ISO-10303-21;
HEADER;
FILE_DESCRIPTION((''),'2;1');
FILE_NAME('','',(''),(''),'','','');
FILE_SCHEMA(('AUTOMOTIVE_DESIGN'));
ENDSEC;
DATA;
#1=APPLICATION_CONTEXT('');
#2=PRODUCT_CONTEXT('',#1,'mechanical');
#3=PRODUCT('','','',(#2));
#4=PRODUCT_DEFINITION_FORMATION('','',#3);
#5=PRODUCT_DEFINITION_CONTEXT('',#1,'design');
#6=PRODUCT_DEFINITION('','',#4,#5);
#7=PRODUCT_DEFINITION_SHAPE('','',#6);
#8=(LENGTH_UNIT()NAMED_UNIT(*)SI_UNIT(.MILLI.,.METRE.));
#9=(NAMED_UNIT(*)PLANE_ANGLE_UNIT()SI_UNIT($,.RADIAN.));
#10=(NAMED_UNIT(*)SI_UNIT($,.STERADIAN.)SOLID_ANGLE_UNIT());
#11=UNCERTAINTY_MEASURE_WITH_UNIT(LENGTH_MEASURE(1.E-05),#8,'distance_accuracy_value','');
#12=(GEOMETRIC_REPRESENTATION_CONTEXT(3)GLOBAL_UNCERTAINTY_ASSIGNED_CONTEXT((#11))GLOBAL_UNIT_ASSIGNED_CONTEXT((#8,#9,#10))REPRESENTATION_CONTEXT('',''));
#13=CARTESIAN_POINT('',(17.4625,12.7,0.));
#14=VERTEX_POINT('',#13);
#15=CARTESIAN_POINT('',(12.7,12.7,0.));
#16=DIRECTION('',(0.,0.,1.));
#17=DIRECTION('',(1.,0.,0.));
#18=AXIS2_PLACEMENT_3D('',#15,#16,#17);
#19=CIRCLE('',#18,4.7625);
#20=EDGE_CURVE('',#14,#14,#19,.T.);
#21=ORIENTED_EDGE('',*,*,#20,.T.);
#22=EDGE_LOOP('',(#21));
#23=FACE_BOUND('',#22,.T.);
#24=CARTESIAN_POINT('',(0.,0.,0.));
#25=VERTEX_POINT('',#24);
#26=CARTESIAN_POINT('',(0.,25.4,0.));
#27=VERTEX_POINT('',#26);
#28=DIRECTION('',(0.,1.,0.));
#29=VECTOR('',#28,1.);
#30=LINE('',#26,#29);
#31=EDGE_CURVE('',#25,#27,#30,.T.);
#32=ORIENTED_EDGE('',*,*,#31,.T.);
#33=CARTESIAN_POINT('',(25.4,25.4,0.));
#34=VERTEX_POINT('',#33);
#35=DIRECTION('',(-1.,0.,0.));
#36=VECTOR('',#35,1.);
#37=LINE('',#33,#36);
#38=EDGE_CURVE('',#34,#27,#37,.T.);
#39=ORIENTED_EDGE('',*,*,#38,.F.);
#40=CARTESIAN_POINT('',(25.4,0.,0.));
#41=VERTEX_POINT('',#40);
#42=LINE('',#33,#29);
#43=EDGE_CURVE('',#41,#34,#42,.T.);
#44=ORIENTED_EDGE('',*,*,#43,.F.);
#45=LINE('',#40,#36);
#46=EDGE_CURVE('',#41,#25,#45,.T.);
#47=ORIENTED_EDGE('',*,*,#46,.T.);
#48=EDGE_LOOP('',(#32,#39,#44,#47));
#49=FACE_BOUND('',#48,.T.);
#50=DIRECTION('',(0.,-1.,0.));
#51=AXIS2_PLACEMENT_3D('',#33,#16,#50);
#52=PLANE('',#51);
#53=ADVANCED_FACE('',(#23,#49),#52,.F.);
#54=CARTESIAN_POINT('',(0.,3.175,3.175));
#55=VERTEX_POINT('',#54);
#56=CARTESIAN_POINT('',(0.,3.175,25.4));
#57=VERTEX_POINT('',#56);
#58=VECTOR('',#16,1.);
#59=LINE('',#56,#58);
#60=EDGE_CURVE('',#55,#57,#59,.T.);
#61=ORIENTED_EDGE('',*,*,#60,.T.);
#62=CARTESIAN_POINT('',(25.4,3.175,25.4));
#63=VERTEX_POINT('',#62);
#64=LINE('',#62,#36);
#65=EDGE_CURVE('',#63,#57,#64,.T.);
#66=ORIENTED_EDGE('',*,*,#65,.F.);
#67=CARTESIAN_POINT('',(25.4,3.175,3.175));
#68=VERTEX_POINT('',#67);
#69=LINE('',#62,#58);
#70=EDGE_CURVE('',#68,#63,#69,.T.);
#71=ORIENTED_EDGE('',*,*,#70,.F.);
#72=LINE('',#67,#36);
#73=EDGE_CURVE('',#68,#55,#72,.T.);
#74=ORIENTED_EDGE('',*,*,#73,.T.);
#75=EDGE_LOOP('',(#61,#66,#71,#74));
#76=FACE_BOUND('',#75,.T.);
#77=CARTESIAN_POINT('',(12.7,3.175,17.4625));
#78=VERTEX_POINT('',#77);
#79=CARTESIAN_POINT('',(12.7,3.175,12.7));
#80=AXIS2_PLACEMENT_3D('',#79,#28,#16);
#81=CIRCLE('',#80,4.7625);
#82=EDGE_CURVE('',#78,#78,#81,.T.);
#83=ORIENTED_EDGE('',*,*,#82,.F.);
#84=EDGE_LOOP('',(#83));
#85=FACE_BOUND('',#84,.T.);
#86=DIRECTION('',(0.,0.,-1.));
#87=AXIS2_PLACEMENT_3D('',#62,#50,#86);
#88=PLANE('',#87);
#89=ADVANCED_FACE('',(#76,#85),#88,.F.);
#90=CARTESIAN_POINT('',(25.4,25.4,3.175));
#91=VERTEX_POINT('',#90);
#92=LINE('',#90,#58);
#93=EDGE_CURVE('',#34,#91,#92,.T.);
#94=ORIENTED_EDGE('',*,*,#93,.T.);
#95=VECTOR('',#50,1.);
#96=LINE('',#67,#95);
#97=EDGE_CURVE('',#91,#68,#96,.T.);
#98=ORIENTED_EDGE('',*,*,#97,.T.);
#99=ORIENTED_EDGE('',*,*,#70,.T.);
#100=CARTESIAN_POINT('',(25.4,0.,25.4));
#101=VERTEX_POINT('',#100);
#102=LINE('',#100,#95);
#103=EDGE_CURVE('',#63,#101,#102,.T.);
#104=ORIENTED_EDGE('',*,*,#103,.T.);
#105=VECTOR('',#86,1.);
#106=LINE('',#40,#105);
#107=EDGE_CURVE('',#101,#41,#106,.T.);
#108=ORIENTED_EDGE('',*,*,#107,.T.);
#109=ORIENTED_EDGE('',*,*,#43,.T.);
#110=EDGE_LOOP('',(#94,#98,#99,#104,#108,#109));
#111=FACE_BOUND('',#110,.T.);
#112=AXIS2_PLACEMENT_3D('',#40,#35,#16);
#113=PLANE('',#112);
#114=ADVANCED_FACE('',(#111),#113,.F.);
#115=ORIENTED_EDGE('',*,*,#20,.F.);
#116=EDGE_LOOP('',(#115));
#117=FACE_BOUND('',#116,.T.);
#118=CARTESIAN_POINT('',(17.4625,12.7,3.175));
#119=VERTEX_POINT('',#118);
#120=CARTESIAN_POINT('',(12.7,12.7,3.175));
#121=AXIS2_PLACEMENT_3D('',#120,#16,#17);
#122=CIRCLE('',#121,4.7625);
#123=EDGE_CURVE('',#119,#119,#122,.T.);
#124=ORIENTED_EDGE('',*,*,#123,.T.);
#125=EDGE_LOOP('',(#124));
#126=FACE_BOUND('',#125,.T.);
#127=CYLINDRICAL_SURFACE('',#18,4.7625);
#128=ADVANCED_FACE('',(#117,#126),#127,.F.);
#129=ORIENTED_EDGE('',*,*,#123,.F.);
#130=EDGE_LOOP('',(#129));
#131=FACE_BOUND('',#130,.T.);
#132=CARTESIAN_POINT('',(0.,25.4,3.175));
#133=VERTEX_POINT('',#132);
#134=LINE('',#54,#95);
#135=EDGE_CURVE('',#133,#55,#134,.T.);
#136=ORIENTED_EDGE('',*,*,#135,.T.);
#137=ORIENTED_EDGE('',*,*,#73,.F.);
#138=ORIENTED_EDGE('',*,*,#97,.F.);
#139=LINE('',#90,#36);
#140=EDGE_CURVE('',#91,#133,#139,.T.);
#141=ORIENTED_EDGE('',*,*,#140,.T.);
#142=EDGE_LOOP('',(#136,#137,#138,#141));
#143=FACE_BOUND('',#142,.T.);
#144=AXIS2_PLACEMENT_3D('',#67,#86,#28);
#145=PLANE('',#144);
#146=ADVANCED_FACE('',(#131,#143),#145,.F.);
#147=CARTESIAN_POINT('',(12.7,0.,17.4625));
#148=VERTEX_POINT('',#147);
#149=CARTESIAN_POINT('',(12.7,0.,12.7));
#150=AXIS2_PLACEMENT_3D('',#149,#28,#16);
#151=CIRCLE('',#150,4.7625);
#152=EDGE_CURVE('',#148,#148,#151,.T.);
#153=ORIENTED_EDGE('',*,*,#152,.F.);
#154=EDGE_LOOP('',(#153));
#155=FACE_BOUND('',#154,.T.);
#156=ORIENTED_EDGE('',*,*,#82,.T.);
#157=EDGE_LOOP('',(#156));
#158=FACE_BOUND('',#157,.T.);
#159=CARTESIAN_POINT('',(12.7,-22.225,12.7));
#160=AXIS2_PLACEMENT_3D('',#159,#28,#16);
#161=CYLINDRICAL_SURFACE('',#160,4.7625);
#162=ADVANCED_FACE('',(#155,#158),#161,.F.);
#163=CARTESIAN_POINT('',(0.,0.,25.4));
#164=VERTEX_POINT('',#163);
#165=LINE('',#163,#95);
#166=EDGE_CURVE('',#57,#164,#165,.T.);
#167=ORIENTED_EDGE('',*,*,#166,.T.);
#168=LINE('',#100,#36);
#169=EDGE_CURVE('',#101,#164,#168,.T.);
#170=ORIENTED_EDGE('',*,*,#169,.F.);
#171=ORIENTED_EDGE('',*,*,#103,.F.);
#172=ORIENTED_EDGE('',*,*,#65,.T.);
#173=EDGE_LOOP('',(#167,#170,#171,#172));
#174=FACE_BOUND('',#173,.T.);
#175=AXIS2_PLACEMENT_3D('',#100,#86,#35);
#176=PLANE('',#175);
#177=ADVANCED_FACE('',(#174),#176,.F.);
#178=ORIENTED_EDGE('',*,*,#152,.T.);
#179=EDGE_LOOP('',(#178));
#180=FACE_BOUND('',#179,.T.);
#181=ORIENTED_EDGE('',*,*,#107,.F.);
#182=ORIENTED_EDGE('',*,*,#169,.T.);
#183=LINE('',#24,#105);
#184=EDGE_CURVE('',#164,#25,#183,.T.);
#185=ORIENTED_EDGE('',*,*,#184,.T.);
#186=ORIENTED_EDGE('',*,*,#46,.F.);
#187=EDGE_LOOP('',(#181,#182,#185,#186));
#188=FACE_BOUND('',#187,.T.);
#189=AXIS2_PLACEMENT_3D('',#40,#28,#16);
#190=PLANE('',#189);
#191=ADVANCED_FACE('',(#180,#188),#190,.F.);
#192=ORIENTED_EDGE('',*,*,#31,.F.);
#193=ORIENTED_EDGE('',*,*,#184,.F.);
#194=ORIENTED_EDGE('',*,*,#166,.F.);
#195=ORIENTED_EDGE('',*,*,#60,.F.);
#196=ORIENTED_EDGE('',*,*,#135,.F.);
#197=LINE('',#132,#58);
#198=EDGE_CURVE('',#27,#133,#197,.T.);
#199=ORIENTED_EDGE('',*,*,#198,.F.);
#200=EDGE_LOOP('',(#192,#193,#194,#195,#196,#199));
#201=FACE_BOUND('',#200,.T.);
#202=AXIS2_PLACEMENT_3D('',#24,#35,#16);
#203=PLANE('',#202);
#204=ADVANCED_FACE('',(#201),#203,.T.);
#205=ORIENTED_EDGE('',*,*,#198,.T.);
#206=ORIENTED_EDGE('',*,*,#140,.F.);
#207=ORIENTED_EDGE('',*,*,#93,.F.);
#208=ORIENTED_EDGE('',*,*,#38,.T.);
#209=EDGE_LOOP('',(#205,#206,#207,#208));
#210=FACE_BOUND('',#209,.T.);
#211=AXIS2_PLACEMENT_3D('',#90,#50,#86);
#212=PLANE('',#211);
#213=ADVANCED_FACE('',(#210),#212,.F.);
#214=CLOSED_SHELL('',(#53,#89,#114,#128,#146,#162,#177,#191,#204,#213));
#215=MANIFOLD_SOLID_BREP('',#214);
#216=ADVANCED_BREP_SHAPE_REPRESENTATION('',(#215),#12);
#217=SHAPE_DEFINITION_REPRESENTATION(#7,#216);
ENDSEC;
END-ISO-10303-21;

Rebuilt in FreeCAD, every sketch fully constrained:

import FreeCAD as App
import Part
import Sketcher

V = App.Vector
Q = App.Units.Quantity

doc = App.newDocument("Part")
body = doc.addObject("PartDesign::Body", "Body")

# Sketch on YZ plane
sketch1 = body.newObject("Sketcher::SketchObject", "Sketch")
sketch1.AttachmentSupport = (doc.getObject("YZ_Plane"), [""])
sketch1.MapMode = "FlatFace"
sketch1.addGeometry([
    Part.LineSegment(V(0, 25.4, 0), V(0, 0, 0)),  # 0
    Part.LineSegment(V(0, 0, 0), V(25.4, 0, 0)),  # 1
    Part.LineSegment(V(25.4, 0, 0), V(25.4, 3.2, 0)),  # 2
    Part.LineSegment(V(25.4, 3.2, 0), V(3.2, 3.2, 0)),  # 3
    Part.LineSegment(V(3.2, 3.2, 0), V(3.2, 25.4, 0)),  # 4
    Part.LineSegment(V(3.2, 25.4, 0), V(0, 25.4, 0)),  # 5
], False)
sketch1.addConstraint([
    Sketcher.Constraint("Coincident", 0, 2, 1, 1),
    Sketcher.Constraint("Coincident", 1, 2, 2, 1),
    Sketcher.Constraint("Coincident", 2, 2, 3, 1),
    Sketcher.Constraint("Coincident", 3, 2, 4, 1),
    Sketcher.Constraint("Coincident", 4, 2, 5, 1),
    Sketcher.Constraint("Coincident", 5, 2, 0, 1),
    Sketcher.Constraint("Vertical", 0),
    Sketcher.Constraint("Horizontal", 1),
    Sketcher.Constraint("Vertical", 2),
    Sketcher.Constraint("Horizontal", 3),
    Sketcher.Constraint("Vertical", 4),
    Sketcher.Constraint("Horizontal", 5),
    Sketcher.Constraint("Coincident", 0, 2, -1, 1),
    Sketcher.Constraint("Equal", 1, 0),
    Sketcher.Constraint("Equal", 5, 2),
    Sketcher.Constraint("DistanceX", 1, 1, 1, 2, Q("1 in")),
    Sketcher.Constraint("DistanceX", 3, 2, 3, 1, Q("0.875 in")),
])
pad1 = body.newObject("PartDesign::Pad", "Pad")
pad1.Profile = sketch1
pad1.Length = Q("1 in")

# Sketch on XZ plane
sketch2 = body.newObject("Sketcher::SketchObject", "Sketch001")
sketch2.AttachmentSupport = (doc.getObject("XZ_Plane"), [""])
sketch2.MapMode = "FlatFace"
sketch2.AttachmentOffset = App.Placement(V(0, 0, -0.125 * 25.4), App.Rotation())
sketch2.addGeometry(Part.Circle(V(12.7, 12.7, 0), V(0, 0, 1), 4.8), False)
sketch2.addConstraint([
    Sketcher.Constraint("Diameter", 0, Q("0.375 in")),
    Sketcher.Constraint("DistanceX", -1, 1, 0, 3, Q("0.5 in")),
    Sketcher.Constraint("DistanceY", -1, 1, 0, 3, Q("0.5 in")),
])
pocket1 = body.newObject("PartDesign::Pocket", "Pocket")
pocket1.Profile = sketch2
pocket1.Length = Q("1 in")
pocket1.Reversed = True

# Sketch on XY plane
sketch3 = body.newObject("Sketcher::SketchObject", "Sketch002")
sketch3.AttachmentSupport = (doc.getObject("XY_Plane"), [""])
sketch3.MapMode = "FlatFace"
sketch3.AttachmentOffset = App.Placement(V(0, 0, 0.125 * 25.4), App.Rotation())
sketch3.addGeometry(Part.Circle(V(12.7, 12.7, 0), V(0, 0, 1), 4.8), False)
sketch3.addConstraint([
    Sketcher.Constraint("Diameter", 0, Q("0.375 in")),
    Sketcher.Constraint("DistanceX", -1, 1, 0, 3, Q("0.5 in")),
    Sketcher.Constraint("DistanceY", -1, 1, 0, 3, Q("0.5 in")),
])
pocket2 = body.newObject("PartDesign::Pocket", "Pocket001")
pocket2.Profile = sketch3
pocket2.Type = "ThroughAll"

doc.recompute()
